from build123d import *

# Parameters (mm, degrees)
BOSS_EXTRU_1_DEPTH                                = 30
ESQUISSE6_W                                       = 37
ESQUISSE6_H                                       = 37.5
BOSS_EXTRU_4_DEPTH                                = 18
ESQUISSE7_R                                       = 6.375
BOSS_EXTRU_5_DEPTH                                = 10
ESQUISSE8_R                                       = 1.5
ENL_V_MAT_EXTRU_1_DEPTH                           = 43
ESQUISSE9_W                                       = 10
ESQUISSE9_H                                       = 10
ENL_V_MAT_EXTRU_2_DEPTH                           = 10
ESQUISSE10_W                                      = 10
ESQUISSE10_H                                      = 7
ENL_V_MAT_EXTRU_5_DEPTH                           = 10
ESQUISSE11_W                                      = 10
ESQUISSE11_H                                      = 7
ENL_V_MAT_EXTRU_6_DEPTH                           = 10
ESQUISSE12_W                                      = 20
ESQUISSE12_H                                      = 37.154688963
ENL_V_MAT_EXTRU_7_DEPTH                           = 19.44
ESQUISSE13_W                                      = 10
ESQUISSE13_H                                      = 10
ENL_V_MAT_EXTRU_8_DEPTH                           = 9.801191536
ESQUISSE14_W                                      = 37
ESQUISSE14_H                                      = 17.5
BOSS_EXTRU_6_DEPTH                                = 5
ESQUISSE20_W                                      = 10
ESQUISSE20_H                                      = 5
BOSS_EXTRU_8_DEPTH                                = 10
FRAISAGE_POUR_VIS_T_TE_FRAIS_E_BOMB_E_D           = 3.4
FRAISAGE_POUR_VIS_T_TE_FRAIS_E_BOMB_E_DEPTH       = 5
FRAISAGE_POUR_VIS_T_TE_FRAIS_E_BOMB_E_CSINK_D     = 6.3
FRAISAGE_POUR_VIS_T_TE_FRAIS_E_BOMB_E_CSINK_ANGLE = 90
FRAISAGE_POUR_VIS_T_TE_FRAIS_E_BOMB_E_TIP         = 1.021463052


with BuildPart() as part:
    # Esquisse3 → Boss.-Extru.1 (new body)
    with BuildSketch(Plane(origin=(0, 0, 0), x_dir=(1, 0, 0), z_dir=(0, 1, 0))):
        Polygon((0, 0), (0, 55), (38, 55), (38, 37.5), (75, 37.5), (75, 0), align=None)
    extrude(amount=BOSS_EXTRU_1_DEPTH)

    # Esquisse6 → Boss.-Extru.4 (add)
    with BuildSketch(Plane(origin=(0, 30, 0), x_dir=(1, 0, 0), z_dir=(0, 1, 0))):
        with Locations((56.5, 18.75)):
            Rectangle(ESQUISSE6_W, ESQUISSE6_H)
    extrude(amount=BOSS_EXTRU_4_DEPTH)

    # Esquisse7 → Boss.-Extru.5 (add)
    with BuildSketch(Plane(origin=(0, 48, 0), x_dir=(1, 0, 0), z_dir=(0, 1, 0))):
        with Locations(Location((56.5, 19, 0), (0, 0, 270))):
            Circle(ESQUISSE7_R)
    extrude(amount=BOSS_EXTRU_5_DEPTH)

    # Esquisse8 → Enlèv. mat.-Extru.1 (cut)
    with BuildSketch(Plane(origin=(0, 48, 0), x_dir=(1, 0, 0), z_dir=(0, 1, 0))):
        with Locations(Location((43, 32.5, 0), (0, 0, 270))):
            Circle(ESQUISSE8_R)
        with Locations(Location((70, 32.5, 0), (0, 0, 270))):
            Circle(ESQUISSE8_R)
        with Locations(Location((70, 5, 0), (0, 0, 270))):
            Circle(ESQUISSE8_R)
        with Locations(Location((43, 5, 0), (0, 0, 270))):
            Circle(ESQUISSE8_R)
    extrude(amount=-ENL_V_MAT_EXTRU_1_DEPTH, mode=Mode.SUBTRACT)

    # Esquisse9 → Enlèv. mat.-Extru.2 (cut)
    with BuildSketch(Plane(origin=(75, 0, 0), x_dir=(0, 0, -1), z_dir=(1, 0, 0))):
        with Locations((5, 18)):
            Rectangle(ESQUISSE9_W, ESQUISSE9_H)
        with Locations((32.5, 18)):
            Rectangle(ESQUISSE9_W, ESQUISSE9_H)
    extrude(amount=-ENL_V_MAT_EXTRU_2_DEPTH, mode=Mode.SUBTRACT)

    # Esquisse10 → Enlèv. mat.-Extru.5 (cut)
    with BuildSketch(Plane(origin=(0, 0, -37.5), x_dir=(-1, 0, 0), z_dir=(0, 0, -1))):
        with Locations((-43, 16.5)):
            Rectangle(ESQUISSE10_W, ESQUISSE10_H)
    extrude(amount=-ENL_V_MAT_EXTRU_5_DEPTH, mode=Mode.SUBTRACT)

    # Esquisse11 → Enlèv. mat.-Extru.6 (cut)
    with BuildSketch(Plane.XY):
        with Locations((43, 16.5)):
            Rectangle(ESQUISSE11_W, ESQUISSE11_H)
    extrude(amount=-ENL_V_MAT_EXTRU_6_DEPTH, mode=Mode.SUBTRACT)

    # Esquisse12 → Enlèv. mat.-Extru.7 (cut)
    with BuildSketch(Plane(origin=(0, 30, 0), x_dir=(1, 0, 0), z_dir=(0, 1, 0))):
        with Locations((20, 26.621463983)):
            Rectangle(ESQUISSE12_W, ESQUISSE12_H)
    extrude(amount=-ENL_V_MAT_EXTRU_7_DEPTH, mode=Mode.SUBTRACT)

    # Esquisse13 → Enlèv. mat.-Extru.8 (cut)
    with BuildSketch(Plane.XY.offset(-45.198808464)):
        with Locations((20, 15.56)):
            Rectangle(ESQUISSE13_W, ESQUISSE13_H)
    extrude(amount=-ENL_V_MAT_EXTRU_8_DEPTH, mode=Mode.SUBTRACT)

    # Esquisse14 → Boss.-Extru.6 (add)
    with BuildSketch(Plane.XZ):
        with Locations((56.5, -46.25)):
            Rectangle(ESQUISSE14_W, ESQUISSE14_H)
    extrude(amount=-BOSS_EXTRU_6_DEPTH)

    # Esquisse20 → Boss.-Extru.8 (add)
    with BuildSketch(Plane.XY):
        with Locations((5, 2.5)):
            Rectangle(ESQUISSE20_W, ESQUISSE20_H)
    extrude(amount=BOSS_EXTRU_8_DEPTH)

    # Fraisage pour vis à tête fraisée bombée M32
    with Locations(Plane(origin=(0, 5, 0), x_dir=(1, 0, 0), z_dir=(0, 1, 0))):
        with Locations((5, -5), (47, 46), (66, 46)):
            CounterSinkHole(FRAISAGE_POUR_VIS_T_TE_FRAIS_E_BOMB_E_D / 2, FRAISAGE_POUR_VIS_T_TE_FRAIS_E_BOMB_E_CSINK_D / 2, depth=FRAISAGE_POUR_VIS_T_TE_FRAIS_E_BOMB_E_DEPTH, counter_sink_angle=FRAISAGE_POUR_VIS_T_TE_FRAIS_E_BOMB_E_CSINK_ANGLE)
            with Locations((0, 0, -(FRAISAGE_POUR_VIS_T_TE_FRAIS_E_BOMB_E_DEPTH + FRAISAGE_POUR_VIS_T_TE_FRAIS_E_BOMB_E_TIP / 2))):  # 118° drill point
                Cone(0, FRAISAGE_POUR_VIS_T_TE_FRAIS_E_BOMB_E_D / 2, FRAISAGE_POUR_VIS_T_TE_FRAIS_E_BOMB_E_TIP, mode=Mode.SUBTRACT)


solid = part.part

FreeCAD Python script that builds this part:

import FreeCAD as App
import Part
import Sketcher


def add_polygon(sketch, points):
    """Adds a closed chain of lines whose ends are joined by coincident constraints."""
    first, n = sketch.GeometryCount, len(points)
    for a, b in zip(points, points[1:] + points[:1]):
        sketch.addGeometry(Part.LineSegment(App.Vector(*a, 0), App.Vector(*b, 0)), False)
    for i in range(n):
        sketch.addConstraint(Sketcher.Constraint("Coincident", first + i, 2, first + (i + 1) % n, 1))

doc = App.newDocument("Part")
body = doc.addObject("PartDesign::Body", "Body")

# Sketch on XZ plane
sketch1 = body.newObject("Sketcher::SketchObject", "Sketch")
sketch1.AttachmentSupport = (doc.getObject("XZ_Plane"), [""])
sketch1.MapMode = "FlatFace"
add_polygon(sketch1, [(0, -55), (0, 0), (75, 0), (75, -37.5), (38, -37.5), (38, -55)])  # lines 0-5
sketch1.addConstraint([
    Sketcher.Constraint("Vertical", 0),
    Sketcher.Constraint("Horizontal", 1),
    Sketcher.Constraint("Vertical", 2),
    Sketcher.Constraint("Horizontal", 3),
    Sketcher.Constraint("Vertical", 4),
    Sketcher.Constraint("Horizontal", 5),
    Sketcher.Constraint("Coincident", 0, 2, -1, 1),
    Sketcher.Constraint("DistanceX", 1, 1, 1, 2, 75.0),
    Sketcher.Constraint("DistanceX", 3, 2, 3, 1, 37.0),
    Sketcher.Constraint("DistanceY", 0, 1, 0, 2, 55.0),
    Sketcher.Constraint("DistanceY", 2, 2, 2, 1, 37.5),
])
pad1 = body.newObject("PartDesign::Pad", "Pad")
pad1.Profile = sketch1
pad1.Length = 30
pad1.Reversed = True

# Sketch on XZ plane
sketch2 = body.newObject("Sketcher::SketchObject", "Sketch001")
sketch2.AttachmentSupport = (doc.getObject("XZ_Plane"), [""])
sketch2.MapMode = "FlatFace"
sketch2.AttachmentOffset = App.Placement(App.Vector(0, 0, -30), App.Rotation())
add_polygon(sketch2, [(38, -37.5), (38, 0), (75, 0), (75, -37.5)])  # lines 0-3
sketch2.addConstraint([
    Sketcher.Constraint("Vertical", 0),
    Sketcher.Constraint("Horizontal", 1),
    Sketcher.Constraint("Vertical", 2),
    Sketcher.Constraint("Horizontal", 3),
    Sketcher.Constraint("PointOnObject", 0, 2, -1),
    Sketcher.Constraint("DistanceX", 1, 1, 1, 2, 37.0),
    Sketcher.Constraint("DistanceY", 0, 1, 0, 2, 37.5),
    Sketcher.Constraint("DistanceX", -1, 1, 0, 2, 38.0),
])
pad2 = body.newObject("PartDesign::Pad", "Pad001")
pad2.Profile = sketch2
pad2.Length = 18
pad2.Reversed = True

# Sketch on XZ plane
sketch3 = body.newObject("Sketcher::SketchObject", "Sketch002")
sketch3.AttachmentSupport = (doc.getObject("XZ_Plane"), [""])
sketch3.MapMode = "FlatFace"
sketch3.AttachmentOffset = App.Placement(App.Vector(0, 0, -48), App.Rotation())
sketch3.addGeometry(Part.Circle(App.Vector(56.5, -19, 0), App.Vector(0, 0, 1), 6.375), False)
sketch3.addConstraint([
    Sketcher.Constraint("Diameter", 0, 12.75),
    Sketcher.Constraint("DistanceY", 0, 3, -1, 1, 19.0),
    Sketcher.Constraint("DistanceX", -1, 1, 0, 3, 56.5),
])
pad3 = body.newObject("PartDesign::Pad", "Pad002")
pad3.Profile = sketch3
pad3.Length = 10
pad3.Reversed = True

# Sketch on XZ plane
sketch4 = body.newObject("Sketcher::SketchObject", "Sketch003")
sketch4.AttachmentSupport = (doc.getObject("XZ_Plane"), [""])
sketch4.MapMode = "FlatFace"
sketch4.AttachmentOffset = App.Placement(App.Vector(0, 0, -48), App.Rotation())
sketch4.addGeometry([
    Part.Circle(App.Vector(43, -32.5, 0), App.Vector(0, 0, 1), 1.5),
    Part.Circle(App.Vector(70, -32.5, 0), App.Vector(0, 0, 1), 1.5),
    Part.Circle(App.Vector(70, -5, 0), App.Vector(0, 0, 1), 1.5),
    Part.Circle(App.Vector(43, -5, 0), App.Vector(0, 0, 1), 1.5),
], False)
sketch4.addConstraint([
    Sketcher.Constraint("Equal", 0, 1),
    Sketcher.Constraint("Equal", 1, 2),
    Sketcher.Constraint("Equal", 2, 3),
    Sketcher.Constraint("Horizontal", 0, 3, 1, 3),
    Sketcher.Constraint("Horizontal", 2, 3, 3, 3),
    Sketcher.Constraint("Vertical", 1, 3, 2, 3),
    Sketcher.Constraint("Vertical", 0, 3, 3, 3),
    Sketcher.Constraint("Diameter", 0, 3.0),
    Sketcher.Constraint("DistanceX", -1, 1, 0, 3, 43.0),
    Sketcher.Constraint("DistanceX", -1, 1, 1, 3, 70.0),
    Sketcher.Constraint("DistanceY", 2, 3, -1, 1, 5.0),
    Sketcher.Constraint("DistanceY", 0, 3, -1, 1, 32.5),
])
pocket1 = body.newObject("PartDesign::Pocket", "Pocket")
pocket1.Profile = sketch4
pocket1.Length = 43
pocket1.Reversed = True

# Sketch on YZ plane
sketch5 = body.newObject("Sketcher::SketchObject", "Sketch004")
sketch5.AttachmentSupport = (doc.getObject("YZ_Plane"), [""])
sketch5.MapMode = "FlatFace"
sketch5.AttachmentOffset = App.Placement(App.Vector(0, 0, 75), App.Rotation())
add_polygon(sketch5, [(23, 0), (13, 0), (13, -10), (23, -10)])  # lines 0-3
add_polygon(sketch5, [(23, -27.5), (13, -27.5), (13, -37.5), (23, -37.5)])  # lines 4-7
sketch5.addConstraint([
    Sketcher.Constraint("Horizontal", 0),
    Sketcher.Constraint("Vertical", 1),
    Sketcher.Constraint("Horizontal", 2),
    Sketcher.Constraint("Vertical", 3),
    Sketcher.Constraint("Horizontal", 4),
    Sketcher.Constraint("Vertical", 5),
    Sketcher.Constraint("Horizontal", 6),
    Sketcher.Constraint("Vertical", 7),
    Sketcher.Constraint("PointOnObject", 0, 2, -1),
    Sketcher.Constraint("Vertical", 1, 2, 4, 2),
    Sketcher.Constraint("Vertical", 3, 2, 6, 2),
    Sketcher.Constraint("Equal", 6, 1),
    Sketcher.Constraint("Equal", 3, 5),
    Sketcher.Constraint("DistanceX", 0, 2, 0, 1, 10.0),
    Sketcher.Constraint("DistanceX", -1, 1, 0, 2, 13.0),
    Sketcher.Constraint("DistanceY", 4, 2, -1, 1, 27.5),
])
pocket2 = body.newObject("PartDesign::Pocket", "Pocket001")
pocket2.Profile = sketch5
pocket2.Length = 10

# Sketch on XY plane
sketch6 = body.newObject("Sketcher::SketchObject", "Sketch005")
sketch6.AttachmentSupport = (doc.getObject("XY_Plane"), [""])
sketch6.MapMode = "FlatFace"
sketch6.AttachmentOffset = App.Placement(App.Vector(0, 0, -37.5), App.Rotation())
add_polygon(sketch6, [(48, 20), (48, 13), (38, 13), (38, 20)])  # lines 0-3
sketch6.addConstraint([
    Sketcher.Constraint("Vertical", 0),
    Sketcher.Constraint("Horizontal", 1),
    Sketcher.Constraint("Vertical", 2),
    Sketcher.Constraint("Horizontal", 3),
    Sketcher.Constraint("DistanceX", 1, 2, 1, 1, 10.0),
    Sketcher.Constraint("DistanceY", 0, 2, 0, 1, 7.0),
    Sketcher.Constraint("DistanceX", -1, 1, 0, 2, 48.0),
    Sketcher.Constraint("DistanceY", -1, 1, 0, 2, 13.0),
])
pocket3 = body.newObject("PartDesign::Pocket", "Pocket002")
pocket3.Profile = sketch6
pocket3.Length = 10
pocket3.Reversed = True

# Sketch on XY plane
sketch7 = body.newObject("Sketcher::SketchObject", "Sketch006")
sketch7.AttachmentSupport = (doc.getObject("XY_Plane"), [""])
sketch7.MapMode = "FlatFace"
add_polygon(sketch7, [(38, 20), (38, 13), (48, 13), (48, 20)])  # lines 0-3
sketch7.addConstraint([
    Sketcher.Constraint("Vertical", 0),
    Sketcher.Constraint("Horizontal", 1),
    Sketcher.Constraint("Vertical", 2),
    Sketcher.Constraint("Horizontal", 3),
    Sketcher.Constraint("DistanceX", 1, 1, 1, 2, 10.0),
    Sketcher.Constraint("DistanceY", 0, 2, 0, 1, 7.0),
    Sketcher.Constraint("DistanceX", -1, 1, 0, 2, 38.0),
    Sketcher.Constraint("DistanceY", -1, 1, 0, 2, 13.0),
])
pocket4 = body.newObject("PartDesign::Pocket", "Pocket003")
pocket4.Profile = sketch7
pocket4.Length = 10

# Sketch on XZ plane
sketch8 = body.newObject("Sketcher::SketchObject", "Sketch007")
sketch8.AttachmentSupport = (doc.getObject("XZ_Plane"), [""])
sketch8.MapMode = "FlatFace"
sketch8.AttachmentOffset = App.Placement(App.Vector(0, 0, -30), App.Rotation())
add_polygon(sketch8, [(10, -45.198808), (10, -8.04412), (30, -8.04412), (30, -45.198808)])  # lines 0-3
sketch8.addConstraint([
    Sketcher.Constraint("Vertical", 0),
    Sketcher.Constraint("Horizontal", 1),
    Sketcher.Constraint("Vertical", 2),
    Sketcher.Constraint("Horizontal", 3),
    Sketcher.Constraint("DistanceX", 1, 1, 1, 2, 20.0),
    Sketcher.Constraint("DistanceX", -1, 1, 0, 2, 10.0),
    Sketcher.Constraint("DistanceY", 0, 1, 0, 2, 37.154689),
    Sketcher.Constraint("DistanceY", 0, 2, -1, 1, 8.04412),
])
pocket5 = body.newObject("PartDesign::Pocket", "Pocket004")
pocket5.Profile = sketch8
pocket5.Length = 19.44
pocket5.Reversed = True

# Sketch on XY plane
sketch9 = body.newObject("Sketcher::SketchObject", "Sketch008")
sketch9.AttachmentSupport = (doc.getObject("XY_Plane"), [""])
sketch9.MapMode = "FlatFace"
sketch9.AttachmentOffset = App.Placement(App.Vector(0, 0, -45.198808), App.Rotation())
add_polygon(sketch9, [(15, 20.56), (15, 10.56), (25, 10.56), (25, 20.56)])  # lines 0-3
sketch9.addConstraint([
    Sketcher.Constraint("Vertical", 0),
    Sketcher.Constraint("Horizontal", 1),
    Sketcher.Constraint("Vertical", 2),
    Sketcher.Constraint("Horizontal", 3),
    Sketcher.Constraint("Equal", 3, 0),
    Sketcher.Constraint("DistanceX", 1, 1, 1, 2, 10.0),
    Sketcher.Constraint("DistanceX", -1, 1, 0, 2, 15.0),
    Sketcher.Constraint("DistanceY", -1, 1, 0, 2, 10.56),
])
pocket6 = body.newObject("PartDesign::Pocket", "Pocket005")
pocket6.Profile = sketch9
pocket6.Length = 9.801192

# Sketch on XZ plane
sketch10 = body.newObject("Sketcher::SketchObject", "Sketch009")
sketch10.AttachmentSupport = (doc.getObject("XZ_Plane"), [""])
sketch10.MapMode = "FlatFace"
add_polygon(sketch10, [(38, -37.5), (38, -55), (75, -55), (75, -37.5)])  # lines 0-3
sketch10.addConstraint([
    Sketcher.Constraint("Vertical", 0),
    Sketcher.Constraint("Horizontal", 1),
    Sketcher.Constraint("Vertical", 2),
    Sketcher.Constraint("Horizontal", 3),
    Sketcher.Constraint("DistanceX", 1, 1, 1, 2, 37.0),
    Sketcher.Constraint("DistanceY", 0, 2, 0, 1, 17.5),
    Sketcher.Constraint("DistanceX", -1, 1, 0, 2, 38.0),
    Sketcher.Constraint("DistanceY", 0, 2, -1, 1, 55.0),
])
pad4 = body.newObject("PartDesign::Pad", "Pad003")
pad4.Profile = sketch10
pad4.Length = 5
pad4.Reversed = True

# Sketch on XY plane
sketch11 = body.newObject("Sketcher::SketchObject", "Sketch010")
sketch11.AttachmentSupport = (doc.getObject("XY_Plane"), [""])
sketch11.MapMode = "FlatFace"
add_polygon(sketch11, [(0, 5), (0, 0), (10, 0), (10, 5)])  # lines 0-3
sketch11.addConstraint([
    Sketcher.Constraint("Vertical", 0),
    Sketcher.Constraint("Horizontal", 1),
    Sketcher.Constraint("Vertical", 2),
    Sketcher.Constraint("Horizontal", 3),
    Sketcher.Constraint("Coincident", 0, 2, -1, 1),
    Sketcher.Constraint("DistanceX", 1, 1, 1, 2, 10.0),
    Sketcher.Constraint("DistanceY", 0, 2, 0, 1, 5.0),
])
pad5 = body.newObject("PartDesign::Pad", "Pad004")
pad5.Profile = sketch11
pad5.Length = 10

# Sketch on XZ plane
sketch12 = body.newObject("Sketcher::SketchObject", "Sketch011")
sketch12.AttachmentSupport = (doc.getObject("XZ_Plane"), [""])
sketch12.MapMode = "FlatFace"
sketch12.AttachmentOffset = App.Placement(App.Vector(0, 0, -5), App.Rotation())
sketch12.addGeometry([
    Part.Circle(App.Vector(5, 5, 0), App.Vector(0, 0, 1), 1.7),
    Part.Circle(App.Vector(47, -46, 0), App.Vector(0, 0, 1), 1.7),
    Part.Circle(App.Vector(66, -46, 0), App.Vector(0, 0, 1), 1.7),
], False)
sketch12.addConstraint([
    Sketcher.Constraint("Equal", 0, 1),
    Sketcher.Constraint("Equal", 1, 2),
    Sketcher.Constraint("Horizontal", 1, 3, 2, 3),
    Sketcher.Constraint("Diameter", 0, 3.4),
    Sketcher.Constraint("DistanceX", -1, 1, 0, 3, 5.0),
    Sketcher.Constraint("DistanceY", -1, 1, 0, 3, 5.0),
    Sketcher.Constraint("DistanceX", -1, 1, 1, 3, 47.0),
    Sketcher.Constraint("DistanceY", 1, 3, -1, 1, 46.0),
    Sketcher.Constraint("DistanceX", -1, 1, 2, 3, 66.0),
])
doc.recompute()
hole = body.newObject("PartDesign::Hole", "Hole")
hole.Profile = sketch12
hole.ThreadType = "None"
hole.Diameter = 3.4
hole.DepthType = "Dimension"
hole.Depth = 5
hole.DrillPoint = "Angled"
hole.DrillPointAngle = 118
hole.HoleCutType = "Countersink"
hole.HoleCutDiameter = 6.3
hole.HoleCutCountersinkAngle = 90
hole.Reversed = True

doc.recompute()
